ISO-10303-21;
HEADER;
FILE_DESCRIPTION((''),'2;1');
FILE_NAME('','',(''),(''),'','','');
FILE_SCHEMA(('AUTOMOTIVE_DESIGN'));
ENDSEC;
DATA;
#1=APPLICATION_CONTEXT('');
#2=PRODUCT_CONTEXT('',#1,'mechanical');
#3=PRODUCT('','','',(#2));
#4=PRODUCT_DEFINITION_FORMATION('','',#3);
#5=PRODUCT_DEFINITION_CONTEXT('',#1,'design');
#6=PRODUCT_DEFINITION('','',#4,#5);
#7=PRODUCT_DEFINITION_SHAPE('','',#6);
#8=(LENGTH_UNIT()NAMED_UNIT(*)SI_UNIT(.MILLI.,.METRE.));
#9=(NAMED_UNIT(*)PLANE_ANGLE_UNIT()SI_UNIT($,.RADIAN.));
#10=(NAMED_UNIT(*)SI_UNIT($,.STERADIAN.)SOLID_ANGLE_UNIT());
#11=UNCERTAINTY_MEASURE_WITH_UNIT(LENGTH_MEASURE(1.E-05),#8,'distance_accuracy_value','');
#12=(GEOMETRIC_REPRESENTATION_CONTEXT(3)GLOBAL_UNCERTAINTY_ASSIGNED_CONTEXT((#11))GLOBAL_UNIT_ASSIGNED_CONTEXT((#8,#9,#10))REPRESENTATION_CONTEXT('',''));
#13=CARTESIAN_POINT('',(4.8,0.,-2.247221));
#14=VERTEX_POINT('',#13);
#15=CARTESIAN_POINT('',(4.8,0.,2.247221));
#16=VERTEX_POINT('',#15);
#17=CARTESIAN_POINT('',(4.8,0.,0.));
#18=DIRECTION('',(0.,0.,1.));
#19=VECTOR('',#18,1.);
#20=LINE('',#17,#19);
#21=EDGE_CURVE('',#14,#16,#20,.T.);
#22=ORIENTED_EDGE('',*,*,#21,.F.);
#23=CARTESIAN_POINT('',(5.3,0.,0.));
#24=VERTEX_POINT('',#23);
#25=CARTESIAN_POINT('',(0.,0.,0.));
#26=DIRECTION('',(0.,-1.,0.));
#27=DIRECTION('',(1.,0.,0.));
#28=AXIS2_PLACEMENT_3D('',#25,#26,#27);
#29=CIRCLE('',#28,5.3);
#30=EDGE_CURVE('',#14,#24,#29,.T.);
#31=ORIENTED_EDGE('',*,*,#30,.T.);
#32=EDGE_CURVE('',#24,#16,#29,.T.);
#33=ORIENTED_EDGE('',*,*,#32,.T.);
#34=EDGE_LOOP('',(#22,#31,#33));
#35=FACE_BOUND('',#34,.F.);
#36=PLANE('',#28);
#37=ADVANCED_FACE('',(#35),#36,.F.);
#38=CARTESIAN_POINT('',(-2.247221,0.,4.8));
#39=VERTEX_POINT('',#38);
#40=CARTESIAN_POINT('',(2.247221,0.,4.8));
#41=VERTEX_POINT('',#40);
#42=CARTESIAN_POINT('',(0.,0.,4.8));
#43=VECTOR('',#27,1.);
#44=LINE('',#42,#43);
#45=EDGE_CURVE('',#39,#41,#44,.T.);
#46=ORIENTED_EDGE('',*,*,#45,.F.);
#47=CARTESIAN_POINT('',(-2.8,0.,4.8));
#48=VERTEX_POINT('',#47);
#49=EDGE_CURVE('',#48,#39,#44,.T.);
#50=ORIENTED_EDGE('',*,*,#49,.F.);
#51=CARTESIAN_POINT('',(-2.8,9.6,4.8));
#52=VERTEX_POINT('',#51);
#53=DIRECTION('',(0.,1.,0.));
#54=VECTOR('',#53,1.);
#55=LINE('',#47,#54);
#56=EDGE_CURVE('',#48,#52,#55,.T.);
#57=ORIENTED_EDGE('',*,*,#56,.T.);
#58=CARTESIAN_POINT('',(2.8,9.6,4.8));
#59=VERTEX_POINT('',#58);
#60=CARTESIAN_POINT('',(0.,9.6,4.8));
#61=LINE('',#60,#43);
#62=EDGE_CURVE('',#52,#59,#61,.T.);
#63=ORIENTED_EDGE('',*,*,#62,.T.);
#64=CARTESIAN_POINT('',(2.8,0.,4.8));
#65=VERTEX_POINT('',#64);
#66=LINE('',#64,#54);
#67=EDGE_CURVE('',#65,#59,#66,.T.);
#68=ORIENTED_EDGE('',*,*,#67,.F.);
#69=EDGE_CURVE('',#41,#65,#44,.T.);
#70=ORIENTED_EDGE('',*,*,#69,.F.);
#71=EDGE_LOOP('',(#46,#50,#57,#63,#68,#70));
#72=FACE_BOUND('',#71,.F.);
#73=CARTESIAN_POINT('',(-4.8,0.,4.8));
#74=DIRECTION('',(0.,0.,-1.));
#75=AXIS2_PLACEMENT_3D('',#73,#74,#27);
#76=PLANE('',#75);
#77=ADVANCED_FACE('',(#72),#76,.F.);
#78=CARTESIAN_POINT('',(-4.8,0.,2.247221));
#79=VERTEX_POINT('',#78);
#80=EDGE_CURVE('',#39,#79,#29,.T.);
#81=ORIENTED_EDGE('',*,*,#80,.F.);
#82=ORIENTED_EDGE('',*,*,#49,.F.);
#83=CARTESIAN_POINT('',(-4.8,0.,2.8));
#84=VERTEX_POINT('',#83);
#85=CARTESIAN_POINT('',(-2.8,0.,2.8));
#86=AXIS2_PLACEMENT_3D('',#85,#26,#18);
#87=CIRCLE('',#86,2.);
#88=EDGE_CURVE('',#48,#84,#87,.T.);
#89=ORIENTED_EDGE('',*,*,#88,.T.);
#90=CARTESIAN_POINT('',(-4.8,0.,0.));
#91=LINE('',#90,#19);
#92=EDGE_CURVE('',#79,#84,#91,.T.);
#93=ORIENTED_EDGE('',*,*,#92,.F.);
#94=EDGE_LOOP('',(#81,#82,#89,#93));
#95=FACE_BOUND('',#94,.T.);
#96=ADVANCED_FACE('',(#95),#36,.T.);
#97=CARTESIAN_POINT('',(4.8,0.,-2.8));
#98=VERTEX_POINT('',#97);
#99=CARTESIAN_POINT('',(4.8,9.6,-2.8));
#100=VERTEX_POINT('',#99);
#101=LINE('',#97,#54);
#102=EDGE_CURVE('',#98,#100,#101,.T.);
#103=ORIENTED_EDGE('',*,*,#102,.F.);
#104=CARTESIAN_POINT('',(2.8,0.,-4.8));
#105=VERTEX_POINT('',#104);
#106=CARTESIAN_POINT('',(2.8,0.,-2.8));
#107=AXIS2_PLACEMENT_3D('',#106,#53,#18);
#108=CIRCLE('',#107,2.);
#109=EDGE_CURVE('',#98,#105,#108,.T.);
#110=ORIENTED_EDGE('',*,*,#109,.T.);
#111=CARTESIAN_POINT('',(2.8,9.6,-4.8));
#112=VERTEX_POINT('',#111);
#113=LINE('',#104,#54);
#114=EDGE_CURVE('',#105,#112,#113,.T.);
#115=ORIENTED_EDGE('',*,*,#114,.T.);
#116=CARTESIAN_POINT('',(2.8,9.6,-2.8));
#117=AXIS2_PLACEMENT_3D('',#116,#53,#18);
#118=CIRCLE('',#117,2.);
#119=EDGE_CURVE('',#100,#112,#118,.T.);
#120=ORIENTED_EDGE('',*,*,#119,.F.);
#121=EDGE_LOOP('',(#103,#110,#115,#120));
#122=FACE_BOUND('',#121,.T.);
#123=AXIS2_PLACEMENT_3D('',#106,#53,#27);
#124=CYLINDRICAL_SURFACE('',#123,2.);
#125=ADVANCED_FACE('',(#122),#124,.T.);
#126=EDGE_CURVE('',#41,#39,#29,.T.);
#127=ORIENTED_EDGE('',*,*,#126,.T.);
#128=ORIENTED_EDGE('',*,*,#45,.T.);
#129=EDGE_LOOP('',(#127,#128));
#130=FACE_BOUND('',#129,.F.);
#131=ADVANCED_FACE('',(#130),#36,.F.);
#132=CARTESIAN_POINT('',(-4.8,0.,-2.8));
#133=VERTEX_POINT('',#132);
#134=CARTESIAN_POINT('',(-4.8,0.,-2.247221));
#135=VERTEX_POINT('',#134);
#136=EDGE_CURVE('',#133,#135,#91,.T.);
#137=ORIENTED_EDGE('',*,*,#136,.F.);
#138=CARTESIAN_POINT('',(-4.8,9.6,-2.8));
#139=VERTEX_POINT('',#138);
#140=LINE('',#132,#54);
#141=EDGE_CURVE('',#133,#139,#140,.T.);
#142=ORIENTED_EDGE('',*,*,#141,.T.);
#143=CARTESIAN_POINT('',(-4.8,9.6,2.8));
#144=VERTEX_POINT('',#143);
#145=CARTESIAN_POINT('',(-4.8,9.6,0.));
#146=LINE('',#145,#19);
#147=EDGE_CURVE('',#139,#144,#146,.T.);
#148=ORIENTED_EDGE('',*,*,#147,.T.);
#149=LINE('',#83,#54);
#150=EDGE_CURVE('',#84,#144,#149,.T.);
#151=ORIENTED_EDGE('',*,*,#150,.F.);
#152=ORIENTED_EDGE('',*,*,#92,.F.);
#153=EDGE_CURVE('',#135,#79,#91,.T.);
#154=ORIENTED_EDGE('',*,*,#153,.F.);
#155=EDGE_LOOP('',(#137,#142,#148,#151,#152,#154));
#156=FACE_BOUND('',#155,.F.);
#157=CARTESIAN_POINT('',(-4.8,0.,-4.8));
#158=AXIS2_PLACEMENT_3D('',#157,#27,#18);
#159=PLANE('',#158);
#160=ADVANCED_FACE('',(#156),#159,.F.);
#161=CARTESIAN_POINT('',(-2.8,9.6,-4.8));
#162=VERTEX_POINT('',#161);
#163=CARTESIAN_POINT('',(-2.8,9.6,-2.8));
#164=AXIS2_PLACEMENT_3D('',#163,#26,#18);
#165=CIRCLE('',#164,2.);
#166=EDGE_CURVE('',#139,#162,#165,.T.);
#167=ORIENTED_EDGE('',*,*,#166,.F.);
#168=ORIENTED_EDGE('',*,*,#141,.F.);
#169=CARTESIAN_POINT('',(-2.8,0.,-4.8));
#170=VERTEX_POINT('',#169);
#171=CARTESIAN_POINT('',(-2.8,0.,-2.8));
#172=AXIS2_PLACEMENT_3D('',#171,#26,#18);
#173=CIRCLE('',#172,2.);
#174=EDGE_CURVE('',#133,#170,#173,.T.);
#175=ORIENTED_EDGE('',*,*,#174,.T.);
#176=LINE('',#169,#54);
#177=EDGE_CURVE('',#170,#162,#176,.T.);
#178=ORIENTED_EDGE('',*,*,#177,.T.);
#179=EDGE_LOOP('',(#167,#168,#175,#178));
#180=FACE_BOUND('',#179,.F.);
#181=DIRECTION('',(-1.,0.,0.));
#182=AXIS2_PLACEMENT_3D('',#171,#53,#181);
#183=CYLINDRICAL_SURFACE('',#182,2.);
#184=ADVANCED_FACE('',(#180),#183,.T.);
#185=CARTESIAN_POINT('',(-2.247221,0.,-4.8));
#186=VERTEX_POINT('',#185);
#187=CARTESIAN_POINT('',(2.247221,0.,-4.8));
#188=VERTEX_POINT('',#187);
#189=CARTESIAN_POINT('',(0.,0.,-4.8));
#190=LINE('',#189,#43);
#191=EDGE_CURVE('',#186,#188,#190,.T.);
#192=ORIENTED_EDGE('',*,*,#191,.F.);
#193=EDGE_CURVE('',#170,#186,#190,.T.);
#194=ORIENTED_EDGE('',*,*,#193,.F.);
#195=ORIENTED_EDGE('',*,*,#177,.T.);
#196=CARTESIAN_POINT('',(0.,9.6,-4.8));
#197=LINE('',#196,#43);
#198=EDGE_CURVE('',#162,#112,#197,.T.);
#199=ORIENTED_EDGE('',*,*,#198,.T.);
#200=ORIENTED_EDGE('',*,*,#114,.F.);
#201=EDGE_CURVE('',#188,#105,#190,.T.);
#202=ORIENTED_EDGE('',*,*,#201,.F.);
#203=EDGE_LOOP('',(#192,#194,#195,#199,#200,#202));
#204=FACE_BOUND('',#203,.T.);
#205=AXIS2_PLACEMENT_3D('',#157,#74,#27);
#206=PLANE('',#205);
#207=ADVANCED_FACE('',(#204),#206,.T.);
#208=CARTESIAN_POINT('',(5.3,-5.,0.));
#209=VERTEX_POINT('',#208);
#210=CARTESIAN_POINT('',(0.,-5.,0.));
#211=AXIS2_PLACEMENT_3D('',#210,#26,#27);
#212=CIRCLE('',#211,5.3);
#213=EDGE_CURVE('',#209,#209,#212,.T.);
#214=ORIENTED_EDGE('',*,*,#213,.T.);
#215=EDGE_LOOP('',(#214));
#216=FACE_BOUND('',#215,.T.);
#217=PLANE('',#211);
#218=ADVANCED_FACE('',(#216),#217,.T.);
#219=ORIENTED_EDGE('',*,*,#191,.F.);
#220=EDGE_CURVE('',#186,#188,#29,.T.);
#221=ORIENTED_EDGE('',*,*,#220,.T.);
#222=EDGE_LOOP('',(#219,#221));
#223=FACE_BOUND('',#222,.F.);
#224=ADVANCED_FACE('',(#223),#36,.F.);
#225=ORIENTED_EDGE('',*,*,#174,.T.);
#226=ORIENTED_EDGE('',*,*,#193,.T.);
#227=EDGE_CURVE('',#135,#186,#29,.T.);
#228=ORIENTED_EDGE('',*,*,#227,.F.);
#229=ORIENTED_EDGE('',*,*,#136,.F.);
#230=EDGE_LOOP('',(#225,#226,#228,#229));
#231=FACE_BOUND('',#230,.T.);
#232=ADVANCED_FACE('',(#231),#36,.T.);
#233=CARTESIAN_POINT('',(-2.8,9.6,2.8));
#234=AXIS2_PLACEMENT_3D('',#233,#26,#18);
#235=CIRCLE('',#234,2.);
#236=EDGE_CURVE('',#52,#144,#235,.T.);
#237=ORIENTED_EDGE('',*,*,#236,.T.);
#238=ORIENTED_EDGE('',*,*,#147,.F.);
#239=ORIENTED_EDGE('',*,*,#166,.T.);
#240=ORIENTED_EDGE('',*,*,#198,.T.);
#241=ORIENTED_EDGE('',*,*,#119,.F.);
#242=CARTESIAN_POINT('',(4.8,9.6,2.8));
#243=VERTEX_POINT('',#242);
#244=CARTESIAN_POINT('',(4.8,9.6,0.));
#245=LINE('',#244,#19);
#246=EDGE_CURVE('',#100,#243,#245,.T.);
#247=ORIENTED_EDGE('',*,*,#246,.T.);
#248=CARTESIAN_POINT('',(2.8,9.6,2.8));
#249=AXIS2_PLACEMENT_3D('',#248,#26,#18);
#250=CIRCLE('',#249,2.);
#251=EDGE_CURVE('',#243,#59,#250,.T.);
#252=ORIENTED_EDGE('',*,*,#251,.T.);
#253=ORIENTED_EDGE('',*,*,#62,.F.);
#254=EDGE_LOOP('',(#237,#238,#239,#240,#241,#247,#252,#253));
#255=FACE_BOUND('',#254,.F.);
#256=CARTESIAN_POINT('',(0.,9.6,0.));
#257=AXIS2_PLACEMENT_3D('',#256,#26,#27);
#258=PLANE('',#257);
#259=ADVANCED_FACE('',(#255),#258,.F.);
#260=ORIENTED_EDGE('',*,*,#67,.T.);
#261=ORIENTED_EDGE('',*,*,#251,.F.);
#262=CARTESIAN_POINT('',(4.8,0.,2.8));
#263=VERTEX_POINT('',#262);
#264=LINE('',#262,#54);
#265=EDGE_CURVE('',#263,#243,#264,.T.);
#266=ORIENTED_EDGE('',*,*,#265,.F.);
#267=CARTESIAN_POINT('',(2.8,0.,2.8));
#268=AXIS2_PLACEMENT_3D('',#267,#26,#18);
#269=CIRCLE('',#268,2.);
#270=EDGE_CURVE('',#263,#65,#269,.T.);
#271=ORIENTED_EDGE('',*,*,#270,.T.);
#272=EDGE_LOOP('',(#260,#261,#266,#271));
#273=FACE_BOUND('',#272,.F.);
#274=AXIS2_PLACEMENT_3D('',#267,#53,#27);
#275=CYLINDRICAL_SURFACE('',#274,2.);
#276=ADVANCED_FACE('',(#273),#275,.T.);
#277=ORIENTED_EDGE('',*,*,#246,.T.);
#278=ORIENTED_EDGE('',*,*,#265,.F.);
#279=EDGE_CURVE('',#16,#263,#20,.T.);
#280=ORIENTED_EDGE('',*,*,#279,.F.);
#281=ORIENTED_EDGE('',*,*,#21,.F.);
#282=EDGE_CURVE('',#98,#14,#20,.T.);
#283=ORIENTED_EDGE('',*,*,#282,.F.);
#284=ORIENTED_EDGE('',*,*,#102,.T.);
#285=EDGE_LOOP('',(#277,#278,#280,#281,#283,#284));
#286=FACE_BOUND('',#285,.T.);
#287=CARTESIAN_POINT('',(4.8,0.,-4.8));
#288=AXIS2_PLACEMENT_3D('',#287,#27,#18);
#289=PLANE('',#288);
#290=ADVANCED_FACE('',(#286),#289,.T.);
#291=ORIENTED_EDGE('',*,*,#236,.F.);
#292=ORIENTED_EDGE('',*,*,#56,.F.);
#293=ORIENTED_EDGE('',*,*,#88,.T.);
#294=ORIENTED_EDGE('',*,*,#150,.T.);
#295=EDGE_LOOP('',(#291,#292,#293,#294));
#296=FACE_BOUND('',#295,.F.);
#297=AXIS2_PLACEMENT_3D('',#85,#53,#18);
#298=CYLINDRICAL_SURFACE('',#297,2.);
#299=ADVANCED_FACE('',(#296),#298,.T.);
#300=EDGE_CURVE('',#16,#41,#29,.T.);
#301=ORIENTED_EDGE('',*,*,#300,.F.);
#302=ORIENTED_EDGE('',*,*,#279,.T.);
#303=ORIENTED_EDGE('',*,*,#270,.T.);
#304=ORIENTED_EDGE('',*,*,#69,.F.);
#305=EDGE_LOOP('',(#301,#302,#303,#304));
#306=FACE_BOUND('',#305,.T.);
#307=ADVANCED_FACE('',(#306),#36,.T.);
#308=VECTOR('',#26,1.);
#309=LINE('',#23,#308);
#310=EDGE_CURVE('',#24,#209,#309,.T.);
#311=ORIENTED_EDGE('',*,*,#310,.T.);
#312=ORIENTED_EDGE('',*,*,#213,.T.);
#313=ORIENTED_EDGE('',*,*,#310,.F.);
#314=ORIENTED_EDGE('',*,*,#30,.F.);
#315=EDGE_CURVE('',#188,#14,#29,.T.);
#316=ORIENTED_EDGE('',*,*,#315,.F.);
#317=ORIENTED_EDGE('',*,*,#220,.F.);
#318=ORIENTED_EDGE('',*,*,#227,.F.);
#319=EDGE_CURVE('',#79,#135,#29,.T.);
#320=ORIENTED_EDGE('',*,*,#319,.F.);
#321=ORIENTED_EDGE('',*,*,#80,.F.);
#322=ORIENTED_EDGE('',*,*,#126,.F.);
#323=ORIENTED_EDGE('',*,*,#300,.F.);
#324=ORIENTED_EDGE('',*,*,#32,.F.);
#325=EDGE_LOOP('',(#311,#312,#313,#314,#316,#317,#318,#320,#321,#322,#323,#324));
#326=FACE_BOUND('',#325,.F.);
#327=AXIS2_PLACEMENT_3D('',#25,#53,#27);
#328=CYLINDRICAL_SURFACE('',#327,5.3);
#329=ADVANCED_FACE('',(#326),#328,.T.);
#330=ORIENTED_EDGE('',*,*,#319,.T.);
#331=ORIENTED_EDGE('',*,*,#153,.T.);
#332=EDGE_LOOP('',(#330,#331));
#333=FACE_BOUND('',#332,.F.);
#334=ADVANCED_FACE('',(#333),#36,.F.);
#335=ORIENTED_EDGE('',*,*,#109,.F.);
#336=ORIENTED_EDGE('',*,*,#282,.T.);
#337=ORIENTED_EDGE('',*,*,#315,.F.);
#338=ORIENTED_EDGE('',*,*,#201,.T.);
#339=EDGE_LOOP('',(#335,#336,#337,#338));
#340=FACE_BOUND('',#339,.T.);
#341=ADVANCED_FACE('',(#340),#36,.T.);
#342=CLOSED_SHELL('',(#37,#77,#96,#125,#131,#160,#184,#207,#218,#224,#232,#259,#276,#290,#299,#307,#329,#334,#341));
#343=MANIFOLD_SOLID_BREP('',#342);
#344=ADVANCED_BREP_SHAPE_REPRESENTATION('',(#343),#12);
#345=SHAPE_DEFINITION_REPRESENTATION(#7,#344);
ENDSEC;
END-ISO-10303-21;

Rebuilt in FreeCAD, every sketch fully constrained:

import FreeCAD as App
import Part
import Sketcher
Q = App.Units.Quantity


def edges_at(feature, points):
    """Names of the edges that pass closest to the given points."""
    edges = feature.Shape.Edges
    near = lambda p: min(range(len(edges)), key=lambda i: edges[i].distToShape(Part.Vertex(*p))[0])
    return sorted({f"Edge{near(p) + 1}" for p in points})

doc = App.newDocument("Part")
params = doc.addObject("Spreadsheet::Sheet", "Params")
for row, (alias, value) in enumerate([
    ("sketch1_width", "9.6 mm"),
    ("pad1_length", "9.6 mm"),
    ("sketch2_diameter", "10.6 mm"),
    ("pad2_length", "5 mm"),
    ("fillet_radius", "2 mm"),
], start=1):
    params.set(f"A{row}", alias)
    params.set(f"B{row}", "=" + value)
    params.setAlias(f"B{row}", alias)

body = doc.addObject("PartDesign::Body", "Body")

# Sketch on XZ plane
sketch1 = body.newObject("Sketcher::SketchObject", "Sketch")
sketch1.AttachmentSupport = (doc.getObject("XZ_Plane"), [""])
sketch1.MapMode = "FlatFace"
sketch1.addGeometry(Part.LineSegment(App.Vector(-5, 5, 0), App.Vector(-5, -5, 0)), False)
sketch1.addGeometry(Part.LineSegment(App.Vector(-5, -5, 0), App.Vector(5, -5, 0)), False)
sketch1.addGeometry(Part.LineSegment(App.Vector(5, -5, 0), App.Vector(5, 5, 0)), False)
sketch1.addGeometry(Part.LineSegment(App.Vector(5, 5, 0), App.Vector(-5, 5, 0)), False)
sketch1.addConstraint(Sketcher.Constraint("Coincident", 0, 2, 1, 1))
sketch1.addConstraint(Sketcher.Constraint("Coincident", 1, 2, 2, 1))
sketch1.addConstraint(Sketcher.Constraint("Coincident", 2, 2, 3, 1))
sketch1.addConstraint(Sketcher.Constraint("Coincident", 3, 2, 0, 1))
sketch1.addConstraint(Sketcher.Constraint("Vertical", 0))
sketch1.addConstraint(Sketcher.Constraint("Horizontal", 1))
sketch1.addConstraint(Sketcher.Constraint("Vertical", 2))
sketch1.addConstraint(Sketcher.Constraint("Horizontal", 3))
sketch1.addConstraint(Sketcher.Constraint("Symmetric", 0, 2, 2, 2, -1, 1))
sketch1.addConstraint(Sketcher.Constraint("Equal", 3, 0))
sketch1.addConstraint(Sketcher.Constraint("DistanceX", 1, 1, 1, 2, Q("9.6 mm")))
sketch1.setExpression("Constraints[10]", "Params.sketch1_width")
pad1 = body.newObject("PartDesign::Pad", "Pad")
pad1.Profile = sketch1
pad1.setExpression("Length", "Params.pad1_length")
pad1.Reversed = True

# Sketch on XZ plane
sketch2 = body.newObject("Sketcher::SketchObject", "Sketch001")
sketch2.AttachmentSupport = (doc.getObject("XZ_Plane"), [""])
sketch2.MapMode = "FlatFace"
sketch2.addGeometry(Part.Circle(App.Vector(0, 0, 0), App.Vector(0, 0, 1), 5), False)
sketch2.addConstraint(Sketcher.Constraint("Coincident", 0, 3, -1, 1))
sketch2.addConstraint(Sketcher.Constraint("Diameter", 0, Q("10.6 mm")))
sketch2.setExpression("Constraints[1]", "Params.sketch2_diameter")
pad2 = body.newObject("PartDesign::Pad", "Pad001")
pad2.Profile = sketch2
pad2.setExpression("Length", "Params.pad2_length")
doc.recompute()

fillet = body.newObject("PartDesign::Fillet", "Fillet")
fillet.Base = (pad2, edges_at(pad2, [
    (4.8, 4.8, 4.8),
    (-4.8, 4.8, 4.8),
    (-4.8, 4.8, -4.8),
    (4.8, 4.8, -4.8),
]))
fillet.setExpression("Radius", "Params.fillet_radius")

doc.recompute()
